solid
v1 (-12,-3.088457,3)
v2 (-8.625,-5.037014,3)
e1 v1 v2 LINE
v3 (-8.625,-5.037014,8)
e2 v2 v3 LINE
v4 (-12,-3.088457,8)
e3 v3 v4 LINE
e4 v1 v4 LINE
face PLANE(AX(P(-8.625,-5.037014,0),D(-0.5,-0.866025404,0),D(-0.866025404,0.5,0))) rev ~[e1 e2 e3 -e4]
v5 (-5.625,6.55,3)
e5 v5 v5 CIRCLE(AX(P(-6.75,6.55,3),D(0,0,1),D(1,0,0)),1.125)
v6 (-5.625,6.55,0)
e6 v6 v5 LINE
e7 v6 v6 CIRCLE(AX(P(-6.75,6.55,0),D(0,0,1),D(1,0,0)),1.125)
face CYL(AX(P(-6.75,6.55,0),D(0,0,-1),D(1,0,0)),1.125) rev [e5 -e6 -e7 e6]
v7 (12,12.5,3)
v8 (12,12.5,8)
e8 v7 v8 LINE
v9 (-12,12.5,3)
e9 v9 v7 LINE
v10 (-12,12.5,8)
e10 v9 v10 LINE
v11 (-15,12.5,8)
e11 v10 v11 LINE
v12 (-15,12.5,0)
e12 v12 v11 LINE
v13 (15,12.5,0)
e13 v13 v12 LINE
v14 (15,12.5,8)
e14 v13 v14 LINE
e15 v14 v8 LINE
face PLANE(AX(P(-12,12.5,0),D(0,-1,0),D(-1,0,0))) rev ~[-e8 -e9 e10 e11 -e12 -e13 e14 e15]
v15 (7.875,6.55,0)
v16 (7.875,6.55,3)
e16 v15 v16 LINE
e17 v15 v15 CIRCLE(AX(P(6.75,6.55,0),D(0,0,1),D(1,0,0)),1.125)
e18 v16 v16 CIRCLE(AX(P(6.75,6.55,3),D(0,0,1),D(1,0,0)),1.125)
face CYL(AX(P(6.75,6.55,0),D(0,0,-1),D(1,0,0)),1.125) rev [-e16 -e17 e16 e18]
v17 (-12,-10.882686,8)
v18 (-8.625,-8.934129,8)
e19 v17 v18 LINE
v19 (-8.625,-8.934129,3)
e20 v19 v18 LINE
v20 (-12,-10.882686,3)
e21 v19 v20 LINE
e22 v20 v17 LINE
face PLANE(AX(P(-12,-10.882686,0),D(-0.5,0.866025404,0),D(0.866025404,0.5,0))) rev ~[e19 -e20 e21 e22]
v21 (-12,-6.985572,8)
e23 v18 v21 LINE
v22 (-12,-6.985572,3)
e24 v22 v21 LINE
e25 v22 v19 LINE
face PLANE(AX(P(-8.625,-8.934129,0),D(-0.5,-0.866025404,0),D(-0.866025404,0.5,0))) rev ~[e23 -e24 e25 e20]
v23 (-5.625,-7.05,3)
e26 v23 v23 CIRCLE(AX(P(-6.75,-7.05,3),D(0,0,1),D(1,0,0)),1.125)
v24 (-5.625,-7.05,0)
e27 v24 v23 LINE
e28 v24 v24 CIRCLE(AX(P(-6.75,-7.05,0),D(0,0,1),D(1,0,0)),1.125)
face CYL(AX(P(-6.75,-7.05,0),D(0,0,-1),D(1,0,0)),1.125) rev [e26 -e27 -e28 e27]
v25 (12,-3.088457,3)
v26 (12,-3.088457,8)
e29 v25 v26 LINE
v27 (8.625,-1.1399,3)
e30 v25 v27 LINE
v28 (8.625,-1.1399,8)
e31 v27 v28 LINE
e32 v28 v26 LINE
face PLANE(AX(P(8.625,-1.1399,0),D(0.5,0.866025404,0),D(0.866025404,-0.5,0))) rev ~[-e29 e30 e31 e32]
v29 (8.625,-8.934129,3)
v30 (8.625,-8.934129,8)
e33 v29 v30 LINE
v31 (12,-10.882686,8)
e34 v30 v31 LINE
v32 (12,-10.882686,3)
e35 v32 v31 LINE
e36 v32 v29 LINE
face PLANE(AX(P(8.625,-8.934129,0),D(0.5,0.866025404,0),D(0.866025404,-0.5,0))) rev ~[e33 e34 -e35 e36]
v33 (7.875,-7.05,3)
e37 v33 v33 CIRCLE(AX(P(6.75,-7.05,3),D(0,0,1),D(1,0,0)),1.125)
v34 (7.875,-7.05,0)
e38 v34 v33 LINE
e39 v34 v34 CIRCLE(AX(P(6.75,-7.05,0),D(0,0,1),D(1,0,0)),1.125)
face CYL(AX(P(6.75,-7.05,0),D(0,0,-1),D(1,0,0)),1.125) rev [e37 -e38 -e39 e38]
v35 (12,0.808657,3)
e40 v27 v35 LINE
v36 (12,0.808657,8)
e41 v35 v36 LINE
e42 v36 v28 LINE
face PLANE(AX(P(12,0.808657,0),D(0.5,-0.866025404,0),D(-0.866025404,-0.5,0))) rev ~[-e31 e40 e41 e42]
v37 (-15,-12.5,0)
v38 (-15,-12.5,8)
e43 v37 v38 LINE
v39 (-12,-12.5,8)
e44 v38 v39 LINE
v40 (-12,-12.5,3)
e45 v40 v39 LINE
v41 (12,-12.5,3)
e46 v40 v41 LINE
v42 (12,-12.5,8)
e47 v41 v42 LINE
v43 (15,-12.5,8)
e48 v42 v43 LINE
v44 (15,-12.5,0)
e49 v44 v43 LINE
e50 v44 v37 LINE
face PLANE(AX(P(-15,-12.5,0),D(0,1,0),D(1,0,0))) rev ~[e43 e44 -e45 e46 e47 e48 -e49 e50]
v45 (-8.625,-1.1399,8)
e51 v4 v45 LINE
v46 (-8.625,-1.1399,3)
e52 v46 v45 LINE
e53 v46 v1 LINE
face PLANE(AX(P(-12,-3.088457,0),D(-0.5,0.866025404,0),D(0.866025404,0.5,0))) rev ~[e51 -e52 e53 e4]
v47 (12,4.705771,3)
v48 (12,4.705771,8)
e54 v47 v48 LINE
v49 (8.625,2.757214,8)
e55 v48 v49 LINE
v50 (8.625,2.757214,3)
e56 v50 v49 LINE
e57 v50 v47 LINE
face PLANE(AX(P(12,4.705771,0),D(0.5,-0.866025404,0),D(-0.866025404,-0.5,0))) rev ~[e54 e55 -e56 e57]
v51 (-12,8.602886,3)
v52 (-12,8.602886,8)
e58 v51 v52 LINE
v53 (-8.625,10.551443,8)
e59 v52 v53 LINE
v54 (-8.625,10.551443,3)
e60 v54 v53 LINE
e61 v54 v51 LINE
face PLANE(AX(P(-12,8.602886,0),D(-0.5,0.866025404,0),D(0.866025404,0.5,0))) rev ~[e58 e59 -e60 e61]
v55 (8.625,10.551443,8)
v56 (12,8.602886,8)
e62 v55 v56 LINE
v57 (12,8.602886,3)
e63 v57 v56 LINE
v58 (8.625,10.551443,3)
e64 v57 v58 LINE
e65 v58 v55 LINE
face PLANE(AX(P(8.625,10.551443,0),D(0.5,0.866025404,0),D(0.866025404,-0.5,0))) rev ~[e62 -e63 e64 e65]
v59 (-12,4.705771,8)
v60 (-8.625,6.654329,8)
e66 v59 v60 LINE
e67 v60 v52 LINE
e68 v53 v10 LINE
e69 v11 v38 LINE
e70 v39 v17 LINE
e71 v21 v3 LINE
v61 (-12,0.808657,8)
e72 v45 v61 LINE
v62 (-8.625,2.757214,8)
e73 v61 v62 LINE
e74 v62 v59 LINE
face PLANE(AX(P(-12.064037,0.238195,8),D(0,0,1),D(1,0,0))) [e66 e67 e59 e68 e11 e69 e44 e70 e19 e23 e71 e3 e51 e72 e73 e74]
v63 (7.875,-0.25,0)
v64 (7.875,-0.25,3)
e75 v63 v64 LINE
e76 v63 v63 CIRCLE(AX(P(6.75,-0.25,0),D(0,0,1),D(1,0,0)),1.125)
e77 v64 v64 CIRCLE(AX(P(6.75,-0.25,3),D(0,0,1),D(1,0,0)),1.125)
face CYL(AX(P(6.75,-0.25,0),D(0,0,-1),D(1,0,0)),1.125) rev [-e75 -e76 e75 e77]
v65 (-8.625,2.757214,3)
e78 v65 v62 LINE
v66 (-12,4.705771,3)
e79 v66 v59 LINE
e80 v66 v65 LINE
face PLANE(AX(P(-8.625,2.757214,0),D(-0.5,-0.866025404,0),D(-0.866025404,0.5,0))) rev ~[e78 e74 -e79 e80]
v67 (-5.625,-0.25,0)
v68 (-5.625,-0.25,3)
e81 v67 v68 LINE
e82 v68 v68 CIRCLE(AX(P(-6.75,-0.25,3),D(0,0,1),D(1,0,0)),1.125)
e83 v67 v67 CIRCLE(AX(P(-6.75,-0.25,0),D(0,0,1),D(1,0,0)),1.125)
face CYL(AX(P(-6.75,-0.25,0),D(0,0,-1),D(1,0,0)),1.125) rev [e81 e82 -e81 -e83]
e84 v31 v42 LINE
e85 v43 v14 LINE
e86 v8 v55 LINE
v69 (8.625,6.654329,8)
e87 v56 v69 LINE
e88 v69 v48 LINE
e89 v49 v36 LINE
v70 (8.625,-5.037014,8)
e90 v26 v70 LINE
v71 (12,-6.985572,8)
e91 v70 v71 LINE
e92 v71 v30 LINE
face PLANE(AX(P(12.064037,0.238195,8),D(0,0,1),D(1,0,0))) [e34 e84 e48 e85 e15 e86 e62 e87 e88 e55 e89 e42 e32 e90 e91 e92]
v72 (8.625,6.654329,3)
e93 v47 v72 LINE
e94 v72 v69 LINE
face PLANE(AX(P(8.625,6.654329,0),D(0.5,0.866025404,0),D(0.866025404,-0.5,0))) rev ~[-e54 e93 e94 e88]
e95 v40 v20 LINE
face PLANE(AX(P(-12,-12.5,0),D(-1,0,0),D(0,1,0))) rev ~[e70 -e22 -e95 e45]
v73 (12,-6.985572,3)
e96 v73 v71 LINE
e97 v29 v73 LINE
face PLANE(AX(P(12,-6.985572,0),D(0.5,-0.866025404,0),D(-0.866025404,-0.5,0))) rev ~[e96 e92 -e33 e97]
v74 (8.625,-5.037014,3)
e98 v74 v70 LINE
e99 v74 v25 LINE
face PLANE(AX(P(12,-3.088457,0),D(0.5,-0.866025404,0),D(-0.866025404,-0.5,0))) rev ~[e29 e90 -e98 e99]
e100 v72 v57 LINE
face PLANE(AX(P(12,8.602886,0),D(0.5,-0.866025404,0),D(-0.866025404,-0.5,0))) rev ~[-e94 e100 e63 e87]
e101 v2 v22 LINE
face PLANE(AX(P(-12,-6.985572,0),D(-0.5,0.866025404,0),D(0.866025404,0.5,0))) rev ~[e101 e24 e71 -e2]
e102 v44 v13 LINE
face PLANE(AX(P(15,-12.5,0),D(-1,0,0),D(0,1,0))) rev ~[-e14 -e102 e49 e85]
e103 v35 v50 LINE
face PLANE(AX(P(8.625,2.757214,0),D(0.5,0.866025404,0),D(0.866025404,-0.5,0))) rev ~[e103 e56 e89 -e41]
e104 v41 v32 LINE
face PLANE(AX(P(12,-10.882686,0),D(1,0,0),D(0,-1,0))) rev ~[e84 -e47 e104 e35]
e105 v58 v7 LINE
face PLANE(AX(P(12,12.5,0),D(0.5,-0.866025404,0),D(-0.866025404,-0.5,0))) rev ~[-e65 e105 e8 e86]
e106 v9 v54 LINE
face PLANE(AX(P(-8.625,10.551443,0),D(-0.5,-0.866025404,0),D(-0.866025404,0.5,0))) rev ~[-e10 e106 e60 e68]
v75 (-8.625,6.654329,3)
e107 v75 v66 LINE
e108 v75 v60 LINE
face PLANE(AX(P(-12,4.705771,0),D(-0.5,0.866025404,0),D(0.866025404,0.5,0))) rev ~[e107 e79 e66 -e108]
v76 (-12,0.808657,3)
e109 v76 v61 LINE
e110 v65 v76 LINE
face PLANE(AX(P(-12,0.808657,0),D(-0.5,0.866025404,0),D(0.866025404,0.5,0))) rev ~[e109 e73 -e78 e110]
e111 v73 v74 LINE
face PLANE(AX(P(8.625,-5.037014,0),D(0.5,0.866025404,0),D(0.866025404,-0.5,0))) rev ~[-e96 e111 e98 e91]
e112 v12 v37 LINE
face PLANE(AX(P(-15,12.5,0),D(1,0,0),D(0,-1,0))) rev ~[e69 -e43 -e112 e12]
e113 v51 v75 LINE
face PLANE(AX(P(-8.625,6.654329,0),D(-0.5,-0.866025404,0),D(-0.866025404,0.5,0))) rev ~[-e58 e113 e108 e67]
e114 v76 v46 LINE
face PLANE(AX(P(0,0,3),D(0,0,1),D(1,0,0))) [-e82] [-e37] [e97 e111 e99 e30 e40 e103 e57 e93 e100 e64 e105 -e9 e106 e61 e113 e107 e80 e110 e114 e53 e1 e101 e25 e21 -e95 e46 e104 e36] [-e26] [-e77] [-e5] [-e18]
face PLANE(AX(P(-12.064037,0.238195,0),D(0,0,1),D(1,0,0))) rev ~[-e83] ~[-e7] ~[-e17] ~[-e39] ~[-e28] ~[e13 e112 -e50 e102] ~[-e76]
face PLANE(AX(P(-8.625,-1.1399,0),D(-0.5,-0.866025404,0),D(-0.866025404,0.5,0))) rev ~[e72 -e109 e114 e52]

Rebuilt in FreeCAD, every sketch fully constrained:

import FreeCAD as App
import Part
import Sketcher

V = App.Vector
Q = App.Units.Quantity


def add_polygon(sketch, points):
    """Adds a closed chain of lines whose ends are joined by coincident constraints."""
    first, n = sketch.GeometryCount, len(points)
    for a, b in zip(points, points[1:] + points[:1]):
        sketch.addGeometry(Part.LineSegment(App.Vector(*a, 0), App.Vector(*b, 0)), False)
    for i in range(n):
        sketch.addConstraint(Sketcher.Constraint("Coincident", first + i, 2, first + (i + 1) % n, 1))

doc = App.newDocument("Part")
body = doc.addObject("PartDesign::Body", "Body")

sketch1 = doc.addObject("Sketcher::SketchObject", "Sketch")
body.addObject(sketch1)
sketch1.AttachmentSupport = (doc.XY_Plane, [""])
sketch1.MapMode = "FlatFace"
add_polygon(sketch1, [(-12, 12.5), (-12, -12.5), (12, -12.5), (12, 12.5)])
sketch1.addGeometry(Part.Circle(V(-6.8, -7, 0), V(0, 0, 1), 1.1), False)
sketch1.addGeometry(Part.Circle(V(6.8, -7, 0), V(0, 0, 1), 1.1), False)
sketch1.addGeometry(Part.Circle(V(-6.8, -0.2, 0), V(0, 0, 1), 1.1), False)
sketch1.addGeometry(Part.Circle(V(-6.8, 6.5, 0), V(0, 0, 1), 1.1), False)
sketch1.addGeometry(Part.Circle(V(6.8, -0.2, 0), V(0, 0, 1), 1.1), False)
sketch1.addGeometry(Part.Circle(V(6.8, 6.5, 0), V(0, 0, 1), 1.1), False)
sketch1.addConstraint([
    Sketcher.Constraint("Vertical", 0),
    Sketcher.Constraint("Horizontal", 1),
    Sketcher.Constraint("Vertical", 2),
    Sketcher.Constraint("Horizontal", 3),
    Sketcher.Constraint("Equal", 4, 5),
    Sketcher.Constraint("Equal", 5, 6),
    Sketcher.Constraint("Equal", 6, 7),
    Sketcher.Constraint("Equal", 7, 8),
    Sketcher.Constraint("Equal", 8, 9),
    Sketcher.Constraint("Symmetric", 0, 2, 2, 2, -1, 1),
    Sketcher.Constraint("Symmetric", 4, 3, 5, 3, -2),
    Sketcher.Constraint("Symmetric", 6, 3, 8, 3, -2),
    Sketcher.Constraint("Symmetric", 7, 3, 9, 3, -2),
    Sketcher.Constraint("Vertical", 4, 3, 6, 3),
    Sketcher.Constraint("Vertical", 6, 3, 7, 3),
    Sketcher.Constraint("Diameter", 4, 2.25),
    Sketcher.Constraint("DistanceX", 1, 1, 1, 2, 24.0),
    Sketcher.Constraint("DistanceY", 0, 2, 0, 1, 25.0),
    Sketcher.Constraint("DistanceX", 4, 3, 5, 3, 13.5),
    Sketcher.Constraint("DistanceY", 4, 3, 6, 3, 6.8),
    Sketcher.Constraint("DistanceY", 6, 3, 7, 3, 6.8),
    Sketcher.Constraint("DistanceY", 4, 3, -1, 1, 7.05),
])
pad1 = doc.addObject("PartDesign::Pad", "Pad")
body.addObject(pad1)
pad1.Profile = sketch1
pad1.Length = 3

sketch2 = doc.addObject("Sketcher::SketchObject", "Sketch001")
body.addObject(sketch2)
sketch2.AttachmentSupport = (doc.XY_Plane, [""])
sketch2.MapMode = "FlatFace"
add_polygon(sketch2, [(-12, 12.5), (-15, 12.5), (-15, -12.5), (-12, -12.5), (-12, -10.9), (-8.6, -8.9), (-12, -7), (-8.6, -5), (-12, -3.1), (-8.6, -1.1), (-12, 0.8), (-8.6, 2.8), (-12, 4.7), (-8.6, 6.7), (-12, 8.6), (-8.6, 10.6)])
add_polygon(sketch2, [(12, -3.1), (8.6, -5), (12, -7), (8.6, -8.9), (12, -10.9), (12, -12.5), (15, -12.5), (15, 12.5), (12, 12.5), (8.6, 10.6), (12, 8.6), (8.6, 6.7), (12, 4.7), (8.6, 2.8), (12, 0.8), (8.6, -1.1)])
sketch2.addConstraint([
    Sketcher.Constraint("Horizontal", 0),
    Sketcher.Constraint("Vertical", 1),
    Sketcher.Constraint("Horizontal", 2),
    Sketcher.Constraint("Vertical", 3),
    Sketcher.Constraint("Vertical", 20),
    Sketcher.Constraint("Horizontal", 21),
    Sketcher.Constraint("Vertical", 22),
    Sketcher.Constraint("Horizontal", 23),
    Sketcher.Constraint("Symmetric", 15, 2, 20, 2, -1, 1),
    Sketcher.Constraint("Symmetric", 1, 2, 22, 2, -1, 1),
    Sketcher.Constraint("Symmetric", 6, 2, 16, 2, -2),
    Sketcher.Constraint("Symmetric", 5, 2, 17, 2, -2),
    Sketcher.Constraint("Symmetric", 4, 2, 18, 2, -2),
    Sketcher.Constraint("Symmetric", 3, 2, 19, 2, -2),
    Sketcher.Constraint("Symmetric", 15, 2, 23, 2, -2),
    Sketcher.Constraint("Symmetric", 14, 2, 24, 2, -2),
    Sketcher.Constraint("Symmetric", 13, 2, 25, 2, -2),
    Sketcher.Constraint("Symmetric", 12, 2, 26, 2, -2),
    Sketcher.Constraint("Symmetric", 11, 2, 27, 2, -2),
    Sketcher.Constraint("Symmetric", 10, 2, 28, 2, -2),
    Sketcher.Constraint("Symmetric", 9, 2, 29, 2, -2),
    Sketcher.Constraint("Symmetric", 8, 2, 30, 2, -2),
    Sketcher.Constraint("Symmetric", 7, 2, 31, 2, -2),
    Sketcher.Constraint("Parallel", 4, 6),
    Sketcher.Constraint("Parallel", 5, 7),
    Sketcher.Constraint("Parallel", 6, 8),
    Sketcher.Constraint("Parallel", 7, 9),
    Sketcher.Constraint("Parallel", 8, 10),
    Sketcher.Constraint("Parallel", 9, 11),
    Sketcher.Constraint("Parallel", 10, 12),
    Sketcher.Constraint("Parallel", 11, 13),
    Sketcher.Constraint("Parallel", 12, 14),
    Sketcher.Constraint("Parallel", 13, 15),
    Sketcher.Constraint("Parallel", 14, 16),
    Sketcher.Constraint("Vertical", 3, 2, 5, 2),
    Sketcher.Constraint("Vertical", 4, 2, 6, 2),
    Sketcher.Constraint("Vertical", 5, 2, 7, 2),
    Sketcher.Constraint("Vertical", 6, 2, 8, 2),
    Sketcher.Constraint("Vertical", 7, 2, 9, 2),
    Sketcher.Constraint("Vertical", 8, 2, 10, 2),
    Sketcher.Constraint("Vertical", 9, 2, 11, 2),
    Sketcher.Constraint("Vertical", 10, 2, 12, 2),
    Sketcher.Constraint("Vertical", 11, 2, 13, 2),
    Sketcher.Constraint("Vertical", 12, 2, 14, 2),
    Sketcher.Constraint("DistanceX", 0, 2, 0, 1, 3.0),
    Sketcher.Constraint("DistanceY", 1, 2, 1, 1, 25.0),
    Sketcher.Constraint("Angle", 4, Q("30 deg")),
    Sketcher.Constraint("DistanceX", 0, 2, -1, 1, 15.0),
    Sketcher.Constraint("DistanceX", 6, 2, 16, 2, 17.25),
])
pad2 = doc.addObject("PartDesign::Pad", "Pad001")
body.addObject(pad2)
pad2.Profile = sketch2
pad2.Length = 8

doc.recompute()
